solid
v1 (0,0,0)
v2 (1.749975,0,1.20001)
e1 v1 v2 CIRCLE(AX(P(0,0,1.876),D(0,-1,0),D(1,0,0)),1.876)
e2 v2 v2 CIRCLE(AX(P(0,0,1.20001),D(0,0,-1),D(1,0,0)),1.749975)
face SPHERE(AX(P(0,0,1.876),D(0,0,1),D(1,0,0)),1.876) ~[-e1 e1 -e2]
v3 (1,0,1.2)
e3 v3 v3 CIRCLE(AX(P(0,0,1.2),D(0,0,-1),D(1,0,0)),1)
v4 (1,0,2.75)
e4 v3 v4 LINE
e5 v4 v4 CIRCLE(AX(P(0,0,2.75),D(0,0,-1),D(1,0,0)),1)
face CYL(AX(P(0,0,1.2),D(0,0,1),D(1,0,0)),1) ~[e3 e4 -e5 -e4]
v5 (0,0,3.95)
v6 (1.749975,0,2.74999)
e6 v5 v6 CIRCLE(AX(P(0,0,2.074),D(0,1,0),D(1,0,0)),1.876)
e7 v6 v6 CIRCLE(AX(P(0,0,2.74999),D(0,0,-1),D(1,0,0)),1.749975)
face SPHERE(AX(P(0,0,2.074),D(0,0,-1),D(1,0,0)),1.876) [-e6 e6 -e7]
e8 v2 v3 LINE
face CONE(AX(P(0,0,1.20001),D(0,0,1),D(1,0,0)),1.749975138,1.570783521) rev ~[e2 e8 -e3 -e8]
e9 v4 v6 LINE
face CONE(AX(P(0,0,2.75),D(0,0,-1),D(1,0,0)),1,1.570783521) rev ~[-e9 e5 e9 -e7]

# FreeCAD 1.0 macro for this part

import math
import FreeCAD as App
import Part
import Sketcher

V = App.Vector
Q = App.Units.Quantity

doc = App.newDocument("Part")
body = doc.addObject("PartDesign::Body", "Body")

# Sketch on XZ plane
sketch1 = doc.addObject("Sketcher::SketchObject", "Sketch")
body.addObject(sketch1)
sketch1.AttachmentSupport = (doc.XZ_Plane, [""])
sketch1.MapMode = "FlatFace"
sketch1.addGeometry([
    Part.ArcOfCircle(Part.Circle(V(0, 1.9, 0), V(0, 0, 1), 1.9), math.radians(-90), math.radians(-21)),  # 0
    Part.LineSegment(V(1.8, 1.2, 0), V(1, 1.2, 0)),  # 1
    Part.LineSegment(V(1, 1.2, 0), V(1, 2.8, 0)),  # 2
    Part.LineSegment(V(1, 2.8, 0), V(1.8, 2.8, 0)),  # 3
    Part.ArcOfCircle(Part.Circle(V(0, 2.1, 0), V(0, 0, 1), 1.9), math.radians(21), math.radians(90)),  # 4
    Part.LineSegment(V(0, 4, 0), V(0, 0, 0)),  # 5
], False)
sketch1.addConstraint([
    Sketcher.Constraint("Coincident", 0, 2, 1, 1),
    Sketcher.Constraint("Coincident", 1, 2, 2, 1),
    Sketcher.Constraint("Coincident", 2, 2, 3, 1),
    Sketcher.Constraint("Coincident", 3, 2, 4, 1),
    Sketcher.Constraint("Coincident", 4, 2, 5, 1),
    Sketcher.Constraint("Coincident", 5, 2, 0, 1),
    Sketcher.Constraint("Horizontal", 1),
    Sketcher.Constraint("Vertical", 2),
    Sketcher.Constraint("Horizontal", 3),
    Sketcher.Constraint("Vertical", 5),
    Sketcher.Constraint("Coincident", 5, 2, -1, 1),
    Sketcher.Constraint("Equal", 0, 4),
    Sketcher.Constraint("PointOnObject", 0, 3, -2),
    Sketcher.Constraint("PointOnObject", 4, 3, -2),
    Sketcher.Constraint("Vertical", 0, 2, 3, 2),
    Sketcher.Constraint("DistanceX", -1, 1, 1, 2, Q("1 mm")),
    Sketcher.Constraint("Radius", 0, Q("1.876 mm")),
    Sketcher.Constraint("DistanceX", 1, 2, 1, 1, Q("0.75 mm")),
    Sketcher.Constraint("DistanceY", 2, 1, 2, 2, Q("1.55 mm")),
])
revolution = doc.addObject("PartDesign::Revolution", "Revolution")
body.addObject(revolution)
revolution.Profile = sketch1
revolution.ReferenceAxis = (sketch1, ["V_Axis"])
revolution.Angle = 360

doc.recompute()
